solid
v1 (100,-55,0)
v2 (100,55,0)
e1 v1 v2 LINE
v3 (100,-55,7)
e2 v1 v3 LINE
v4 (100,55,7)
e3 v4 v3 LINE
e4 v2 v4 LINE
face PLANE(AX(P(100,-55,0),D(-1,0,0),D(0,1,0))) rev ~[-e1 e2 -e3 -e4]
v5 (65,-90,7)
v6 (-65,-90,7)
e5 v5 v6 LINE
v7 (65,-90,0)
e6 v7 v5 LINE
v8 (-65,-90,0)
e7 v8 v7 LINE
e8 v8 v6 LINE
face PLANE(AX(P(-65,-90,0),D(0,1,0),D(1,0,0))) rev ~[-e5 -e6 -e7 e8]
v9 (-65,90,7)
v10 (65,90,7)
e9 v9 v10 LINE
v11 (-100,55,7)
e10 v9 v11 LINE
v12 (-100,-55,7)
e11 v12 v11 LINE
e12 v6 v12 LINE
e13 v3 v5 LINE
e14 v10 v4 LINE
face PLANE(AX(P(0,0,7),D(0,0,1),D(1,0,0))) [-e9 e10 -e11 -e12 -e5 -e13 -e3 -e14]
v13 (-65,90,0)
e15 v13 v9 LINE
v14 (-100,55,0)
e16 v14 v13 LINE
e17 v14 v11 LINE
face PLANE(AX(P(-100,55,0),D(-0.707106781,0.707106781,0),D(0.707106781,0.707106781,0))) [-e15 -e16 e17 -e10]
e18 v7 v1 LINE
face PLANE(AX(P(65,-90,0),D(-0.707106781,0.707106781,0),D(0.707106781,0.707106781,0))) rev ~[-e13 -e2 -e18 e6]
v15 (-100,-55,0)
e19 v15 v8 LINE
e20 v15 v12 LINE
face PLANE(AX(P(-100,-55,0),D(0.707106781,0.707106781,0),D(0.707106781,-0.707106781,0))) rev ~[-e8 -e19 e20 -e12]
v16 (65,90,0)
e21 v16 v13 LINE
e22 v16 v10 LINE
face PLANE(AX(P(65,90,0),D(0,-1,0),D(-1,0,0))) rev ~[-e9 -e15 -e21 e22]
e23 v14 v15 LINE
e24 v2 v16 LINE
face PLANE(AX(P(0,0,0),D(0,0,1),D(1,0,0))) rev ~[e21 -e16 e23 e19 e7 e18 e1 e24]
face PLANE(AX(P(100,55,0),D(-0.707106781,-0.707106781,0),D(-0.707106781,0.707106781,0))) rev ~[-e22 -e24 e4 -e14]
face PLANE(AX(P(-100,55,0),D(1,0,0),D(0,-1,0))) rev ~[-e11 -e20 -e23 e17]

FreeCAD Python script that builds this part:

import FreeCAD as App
import Part
import Sketcher

V = App.Vector
Q = App.Units.Quantity

doc = App.newDocument("Part")
body = doc.addObject("PartDesign::Body", "Body")

# Sketch on XY plane
sketch1 = doc.addObject("Sketcher::SketchObject", "Sketch")
body.addObject(sketch1)
sketch1.AttachmentSupport = (doc.XY_Plane, [""])
sketch1.MapMode = "FlatFace"
sketch1.addGeometry([
    Part.LineSegment(V(132.5, 102, 0), V(-132.5, 102, 0)),  # 0
    Part.LineSegment(V(-132.5, 102, 0), V(-132.5, -102, 0)),  # 1
    Part.LineSegment(V(-132.5, -102, 0), V(132.5, -102, 0)),  # 2
    Part.LineSegment(V(132.5, -102, 0), V(132.5, 102, 0)),  # 3
    Part.Circle(V(-104, -76, 0), V(0, 0, 1), 1.5),  # 4
    Part.Circle(V(104, -76, 0), V(0, 0, 1), 1.5),  # 5
    Part.Circle(V(-104, 76, 0), V(0, 0, 1), 1.5),  # 6
    Part.Circle(V(104, 76, 0), V(0, 0, 1), 1.5),  # 7
], False)
sketch1.addConstraint([
    Sketcher.Constraint("Coincident", 0, 2, 1, 1),
    Sketcher.Constraint("Coincident", 1, 2, 2, 1),
    Sketcher.Constraint("Coincident", 2, 2, 3, 1),
    Sketcher.Constraint("Coincident", 3, 2, 0, 1),
    Sketcher.Constraint("Horizontal", 0),
    Sketcher.Constraint("Vertical", 1),
    Sketcher.Constraint("Horizontal", 2),
    Sketcher.Constraint("Vertical", 3),
    Sketcher.Constraint("Equal", 4, 5),
    Sketcher.Constraint("Equal", 5, 6),
    Sketcher.Constraint("Equal", 6, 7),
    Sketcher.Constraint("Symmetric", 5, 3, 6, 3, -1, 1),
    Sketcher.Constraint("Symmetric", 4, 3, 7, 3, -1, 1),
    Sketcher.Constraint("Symmetric", 0, 2, 2, 2, -1, 1),
    Sketcher.Constraint("Symmetric", 4, 3, 5, 3, -2),
    Sketcher.Constraint("DistanceX", 0, 2, 0, 1, Q("265 mm")),
    Sketcher.Constraint("DistanceY", 1, 2, 1, 1, Q("204 mm")),
    Sketcher.Constraint("Diameter", 4, Q("2.962 mm")),
    Sketcher.Constraint("DistanceX", 4, 3, -1, 1, Q("104 mm")),
    Sketcher.Constraint("DistanceY", 4, 3, -1, 1, Q("76 mm")),
])
pad1 = doc.addObject("PartDesign::Pad", "Pad")
body.addObject(pad1)
pad1.Profile = sketch1
pad1.Length = 7

# Sketch on XY plane
sketch2 = doc.addObject("Sketcher::SketchObject", "Sketch001")
body.addObject(sketch2)
sketch2.AttachmentSupport = (doc.XY_Plane, [""])
sketch2.MapMode = "FlatFace"
sketch2.addGeometry([
    Part.LineSegment(V(-276, 193, 0), V(276, 193, 0)),  # 0
    Part.LineSegment(V(276, 193, 0), V(276, -193, 0)),  # 1
    Part.LineSegment(V(276, -193, 0), V(-276, -193, 0)),  # 2
    Part.LineSegment(V(-276, -193, 0), V(-276, 193, 0)),  # 3
    Part.LineSegment(V(100, 55, 0), V(65, 90, 0)),  # 4
    Part.LineSegment(V(65, 90, 0), V(-65, 90, 0)),  # 5
    Part.LineSegment(V(-65, 90, 0), V(-100, 55, 0)),  # 6
    Part.LineSegment(V(-100, 55, 0), V(-100, -55, 0)),  # 7
    Part.LineSegment(V(-100, -55, 0), V(-65, -90, 0)),  # 8
    Part.LineSegment(V(-65, -90, 0), V(65, -90, 0)),  # 9
    Part.LineSegment(V(65, -90, 0), V(100, -55, 0)),  # 10
    Part.LineSegment(V(100, -55, 0), V(100, 55, 0)),  # 11
], False)
sketch2.addConstraint([
    Sketcher.Constraint("Coincident", 0, 2, 1, 1),
    Sketcher.Constraint("Coincident", 1, 2, 2, 1),
    Sketcher.Constraint("Coincident", 2, 2, 3, 1),
    Sketcher.Constraint("Coincident", 3, 2, 0, 1),
    Sketcher.Constraint("Coincident", 4, 2, 5, 1),
    Sketcher.Constraint("Coincident", 5, 2, 6, 1),
    Sketcher.Constraint("Coincident", 6, 2, 7, 1),
    Sketcher.Constraint("Coincident", 7, 2, 8, 1),
    Sketcher.Constraint("Coincident", 8, 2, 9, 1),
    Sketcher.Constraint("Coincident", 9, 2, 10, 1),
    Sketcher.Constraint("Coincident", 10, 2, 11, 1),
    Sketcher.Constraint("Coincident", 11, 2, 4, 1),
    Sketcher.Constraint("Horizontal", 0),
    Sketcher.Constraint("Vertical", 1),
    Sketcher.Constraint("Horizontal", 2),
    Sketcher.Constraint("Vertical", 3),
    Sketcher.Constraint("Horizontal", 5),
    Sketcher.Constraint("Vertical", 7),
    Sketcher.Constraint("Horizontal", 9),
    Sketcher.Constraint("Vertical", 11),
    Sketcher.Constraint("Symmetric", 0, 2, 2, 2, -1, 1),
    Sketcher.Constraint("Symmetric", 4, 2, 8, 2, -1, 1),
    Sketcher.Constraint("Symmetric", 6, 2, 10, 2, -1, 1),
    Sketcher.Constraint("Perpendicular", 4, 6),
    Sketcher.Constraint("Perpendicular", 6, 8),
    Sketcher.Constraint("Perpendicular", 8, 10),
    Sketcher.Constraint("Horizontal", 7, 2, 10, 2),
    Sketcher.Constraint("Vertical", 5, 2, 8, 2),
    Sketcher.Constraint("DistanceX", 5, 2, 5, 1, Q("130 mm")),
    Sketcher.Constraint("DistanceY", 8, 2, 5, 2, Q("180 mm")),
    Sketcher.Constraint("DistanceX", 7, 2, 10, 2, Q("200 mm")),
    Sketcher.Constraint("DistanceY", 1, 2, 1, 1, Q("386.886 mm")),
    Sketcher.Constraint("DistanceX", 0, 1, 0, 2, Q("552.2932 mm")),
])
pocket1 = doc.addObject("PartDesign::Pocket", "Pocket")
body.addObject(pocket1)
pocket1.Profile = sketch2
pocket1.Length = 10
pocket1.Reversed = True

doc.recompute()
